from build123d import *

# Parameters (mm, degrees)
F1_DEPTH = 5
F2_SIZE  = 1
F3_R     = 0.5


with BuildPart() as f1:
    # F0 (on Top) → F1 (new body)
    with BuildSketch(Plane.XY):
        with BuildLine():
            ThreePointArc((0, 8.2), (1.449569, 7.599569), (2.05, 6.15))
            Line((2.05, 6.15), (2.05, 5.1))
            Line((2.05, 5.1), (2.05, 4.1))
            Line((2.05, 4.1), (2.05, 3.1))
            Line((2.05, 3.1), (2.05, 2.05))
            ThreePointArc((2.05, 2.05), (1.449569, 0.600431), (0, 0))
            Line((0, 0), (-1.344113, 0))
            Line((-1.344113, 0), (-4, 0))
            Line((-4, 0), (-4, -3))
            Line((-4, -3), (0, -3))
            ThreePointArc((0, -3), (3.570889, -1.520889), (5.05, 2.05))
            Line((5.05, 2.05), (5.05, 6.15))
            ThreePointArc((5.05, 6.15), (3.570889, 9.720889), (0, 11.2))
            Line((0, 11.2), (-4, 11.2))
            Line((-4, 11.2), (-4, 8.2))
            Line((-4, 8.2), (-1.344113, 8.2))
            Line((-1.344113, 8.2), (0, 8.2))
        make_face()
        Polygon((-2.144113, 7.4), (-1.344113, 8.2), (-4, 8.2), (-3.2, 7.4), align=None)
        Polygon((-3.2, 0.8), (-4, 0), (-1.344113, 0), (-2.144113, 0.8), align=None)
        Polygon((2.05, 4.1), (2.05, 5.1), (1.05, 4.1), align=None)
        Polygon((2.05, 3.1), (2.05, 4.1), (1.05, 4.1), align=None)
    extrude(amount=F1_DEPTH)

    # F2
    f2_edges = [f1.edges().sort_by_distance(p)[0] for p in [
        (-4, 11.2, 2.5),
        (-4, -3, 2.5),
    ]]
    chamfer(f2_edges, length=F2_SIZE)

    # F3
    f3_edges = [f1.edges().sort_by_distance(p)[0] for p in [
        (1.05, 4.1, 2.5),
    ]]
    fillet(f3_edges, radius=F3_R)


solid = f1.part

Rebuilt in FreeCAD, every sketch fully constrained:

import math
import FreeCAD as App
import Part
import Sketcher

V = App.Vector


def edges_at(feature, points):
    """Names of the edges that pass closest to the given points."""
    edges = feature.Shape.Edges
    near = lambda p: min(range(len(edges)), key=lambda i: edges[i].distToShape(Part.Vertex(*p))[0])
    return sorted({f"Edge{near(p) + 1}" for p in points})

doc = App.newDocument("Part")
params = doc.addObject("Spreadsheet::Sheet", "Params")
for row, (alias, value) in enumerate([
    ("sketch1_width", "4 mm"),
    ("sketch1_height", "3 mm"),
    ("sketch1_radius", "2.05 mm"),
    ("sketch1_height2", "4.1 mm"),
    ("pad1_length", "5 mm"),
    ("chamfer_size", "1 mm"),
    ("fillet_radius", "0.5 mm"),
], start=1):
    params.set(f"A{row}", alias)
    params.set(f"B{row}", "=" + value)
    params.setAlias(f"B{row}", alias)

body = doc.addObject("PartDesign::Body", "Body")

# Sketch on XY plane
sketch1 = doc.addObject("Sketcher::SketchObject", "Sketch")
body.addObject(sketch1)
sketch1.AttachmentSupport = (doc.XY_Plane, [""])
sketch1.MapMode = "FlatFace"
sketch1.addGeometry([
    Part.ArcOfCircle(Part.Circle(V(0, 6.2, 0), V(0, 0, 1), 2), math.radians(0), math.radians(90)),  # 0
    Part.LineSegment(V(2, 6.2, 0), V(2, 5.1, 0)),  # 1
    Part.LineSegment(V(2, 5.1, 0), V(1.1, 4.1, 0)),  # 2
    Part.LineSegment(V(1.1, 4.1, 0), V(2, 3.1, 0)),  # 3
    Part.LineSegment(V(2, 3.1, 0), V(2, 2, 0)),  # 4
    Part.ArcOfCircle(Part.Circle(V(0, 2, 0), V(0, 0, 1), 2), math.radians(-90), math.radians(0)),  # 5
    Part.LineSegment(V(0, 0, 0), V(-1.3, 0, 0)),  # 6
    Part.LineSegment(V(-1.3, 0, 0), V(-2.1, 0.8, 0)),  # 7
    Part.LineSegment(V(-2.1, 0.8, 0), V(-3.2, 0.8, 0)),  # 8
    Part.LineSegment(V(-3.2, 0.8, 0), V(-4, 0, 0)),  # 9
    Part.LineSegment(V(-4, 0, 0), V(-4, -3, 0)),  # 10
    Part.LineSegment(V(-4, -3, 0), V(0, -3, 0)),  # 11
    Part.ArcOfCircle(Part.Circle(V(0, 2.1, 0), V(0, 0, 1), 5.1), math.radians(-90), math.radians(0)),  # 12
    Part.LineSegment(V(5, 2, 0), V(5, 6.2, 0)),  # 13
    Part.ArcOfCircle(Part.Circle(V(0, 6.1, 0), V(0, 0, 1), 5.1), math.radians(0), math.radians(90)),  # 14
    Part.LineSegment(V(0, 11.2, 0), V(-4, 11.2, 0)),  # 15
    Part.LineSegment(V(-4, 11.2, 0), V(-4, 8.2, 0)),  # 16
    Part.LineSegment(V(-4, 8.2, 0), V(-3.2, 7.4, 0)),  # 17
    Part.LineSegment(V(-3.2, 7.4, 0), V(-2.1, 7.4, 0)),  # 18
    Part.LineSegment(V(-2.1, 7.4, 0), V(-1.3, 8.2, 0)),  # 19
    Part.LineSegment(V(-1.3, 8.2, 0), V(0, 8.2, 0)),  # 20
], False)
sketch1.addConstraint([
    Sketcher.Constraint("Tangent", 0, 1, 1, 1),
    Sketcher.Constraint("Coincident", 1, 2, 2, 1),
    Sketcher.Constraint("Coincident", 2, 2, 3, 1),
    Sketcher.Constraint("Coincident", 3, 2, 4, 1),
    Sketcher.Constraint("Tangent", 4, 2, 5, 2),
    Sketcher.Constraint("Tangent", 5, 1, 6, 1),
    Sketcher.Constraint("Coincident", 6, 2, 7, 1),
    Sketcher.Constraint("Coincident", 7, 2, 8, 1),
    Sketcher.Constraint("Coincident", 8, 2, 9, 1),
    Sketcher.Constraint("Coincident", 9, 2, 10, 1),
    Sketcher.Constraint("Coincident", 10, 2, 11, 1),
    Sketcher.Constraint("Tangent", 11, 2, 12, 1),
    Sketcher.Constraint("Tangent", 12, 2, 13, 1),
    Sketcher.Constraint("Tangent", 13, 2, 14, 1),
    Sketcher.Constraint("Tangent", 14, 2, 15, 1),
    Sketcher.Constraint("Coincident", 15, 2, 16, 1),
    Sketcher.Constraint("Coincident", 16, 2, 17, 1),
    Sketcher.Constraint("Coincident", 17, 2, 18, 1),
    Sketcher.Constraint("Coincident", 18, 2, 19, 1),
    Sketcher.Constraint("Coincident", 19, 2, 20, 1),
    Sketcher.Constraint("Tangent", 20, 2, 0, 2),
    Sketcher.Constraint("Vertical", 1),
    Sketcher.Constraint("Vertical", 4),
    Sketcher.Constraint("Horizontal", 6),
    Sketcher.Constraint("Horizontal", 8),
    Sketcher.Constraint("Vertical", 10),
    Sketcher.Constraint("Horizontal", 11),
    Sketcher.Constraint("Vertical", 13),
    Sketcher.Constraint("Horizontal", 15),
    Sketcher.Constraint("Vertical", 16),
    Sketcher.Constraint("Horizontal", 18),
    Sketcher.Constraint("Horizontal", 20),
    Sketcher.Constraint("Coincident", 5, 1, -1, 1),
    Sketcher.Constraint("Coincident", 12, 3, 5, 3),
    Sketcher.Constraint("Coincident", 14, 3, 0, 3),
    Sketcher.Constraint("Equal", 0, 5),
    Sketcher.Constraint("Equal", 12, 14),
    Sketcher.Constraint("PointOnObject", 9, 2, -1),
    Sketcher.Constraint("Perpendicular", 2, 3),
    Sketcher.Constraint("Parallel", 3, 7),
    Sketcher.Constraint("Perpendicular", 7, 9),
    Sketcher.Constraint("Perpendicular", 9, 17),
    Sketcher.Constraint("Perpendicular", 17, 19),
    Sketcher.Constraint("Horizontal", 16, 2, 19, 2),
    Sketcher.Constraint("Vertical", 10, 2, 15, 2),
    Sketcher.Constraint("Vertical", 8, 2, 17, 2),
    Sketcher.Constraint("Vertical", 7, 2, 18, 2),
    Sketcher.Constraint("Vertical", 6, 2, 19, 2),
    Sketcher.Constraint("Equal", 1, 4),
    Sketcher.Constraint("DistanceX", 11, 1, 11, 2, 4.0),
    Sketcher.Constraint("DistanceY", 10, 2, 10, 1, 3.0),
    Sketcher.Constraint("Radius", 0, 2.05),
    Sketcher.Constraint("DistanceY", 13, 1, 13, 2, 4.1),
    Sketcher.Constraint("DistanceX", 2, 2, 1, 2, 1.0),
    Sketcher.Constraint("DistanceY", -1, 1, 7, 2, 0.8),
    Sketcher.Constraint("DistanceX", 6, 2, 6, 1, 1.344113),
])
sketch1.setExpression("Constraints[49]", "Params.sketch1_width")
sketch1.setExpression("Constraints[50]", "Params.sketch1_height")
sketch1.setExpression("Constraints[51]", "Params.sketch1_radius")
sketch1.setExpression("Constraints[52]", "Params.sketch1_height2")
pad1 = doc.addObject("PartDesign::Pad", "Pad")
body.addObject(pad1)
pad1.Profile = sketch1
pad1.setExpression("Length", "Params.pad1_length")
doc.recompute()

chamfer = doc.addObject("PartDesign::Chamfer", "Chamfer")
body.addObject(chamfer)
chamfer.Base = (pad1, edges_at(pad1, [(-4, 11.2, 2.5), (-4, -3, 2.5)]))
chamfer.setExpression("Size", "Params.chamfer_size")
doc.recompute()

fillet = doc.addObject("PartDesign::Fillet", "Fillet")
body.addObject(fillet)
fillet.Base = (chamfer, edges_at(chamfer, [(1.05, 4.1, 2.5)]))
fillet.setExpression("Radius", "Params.fillet_radius")

doc.recompute()
